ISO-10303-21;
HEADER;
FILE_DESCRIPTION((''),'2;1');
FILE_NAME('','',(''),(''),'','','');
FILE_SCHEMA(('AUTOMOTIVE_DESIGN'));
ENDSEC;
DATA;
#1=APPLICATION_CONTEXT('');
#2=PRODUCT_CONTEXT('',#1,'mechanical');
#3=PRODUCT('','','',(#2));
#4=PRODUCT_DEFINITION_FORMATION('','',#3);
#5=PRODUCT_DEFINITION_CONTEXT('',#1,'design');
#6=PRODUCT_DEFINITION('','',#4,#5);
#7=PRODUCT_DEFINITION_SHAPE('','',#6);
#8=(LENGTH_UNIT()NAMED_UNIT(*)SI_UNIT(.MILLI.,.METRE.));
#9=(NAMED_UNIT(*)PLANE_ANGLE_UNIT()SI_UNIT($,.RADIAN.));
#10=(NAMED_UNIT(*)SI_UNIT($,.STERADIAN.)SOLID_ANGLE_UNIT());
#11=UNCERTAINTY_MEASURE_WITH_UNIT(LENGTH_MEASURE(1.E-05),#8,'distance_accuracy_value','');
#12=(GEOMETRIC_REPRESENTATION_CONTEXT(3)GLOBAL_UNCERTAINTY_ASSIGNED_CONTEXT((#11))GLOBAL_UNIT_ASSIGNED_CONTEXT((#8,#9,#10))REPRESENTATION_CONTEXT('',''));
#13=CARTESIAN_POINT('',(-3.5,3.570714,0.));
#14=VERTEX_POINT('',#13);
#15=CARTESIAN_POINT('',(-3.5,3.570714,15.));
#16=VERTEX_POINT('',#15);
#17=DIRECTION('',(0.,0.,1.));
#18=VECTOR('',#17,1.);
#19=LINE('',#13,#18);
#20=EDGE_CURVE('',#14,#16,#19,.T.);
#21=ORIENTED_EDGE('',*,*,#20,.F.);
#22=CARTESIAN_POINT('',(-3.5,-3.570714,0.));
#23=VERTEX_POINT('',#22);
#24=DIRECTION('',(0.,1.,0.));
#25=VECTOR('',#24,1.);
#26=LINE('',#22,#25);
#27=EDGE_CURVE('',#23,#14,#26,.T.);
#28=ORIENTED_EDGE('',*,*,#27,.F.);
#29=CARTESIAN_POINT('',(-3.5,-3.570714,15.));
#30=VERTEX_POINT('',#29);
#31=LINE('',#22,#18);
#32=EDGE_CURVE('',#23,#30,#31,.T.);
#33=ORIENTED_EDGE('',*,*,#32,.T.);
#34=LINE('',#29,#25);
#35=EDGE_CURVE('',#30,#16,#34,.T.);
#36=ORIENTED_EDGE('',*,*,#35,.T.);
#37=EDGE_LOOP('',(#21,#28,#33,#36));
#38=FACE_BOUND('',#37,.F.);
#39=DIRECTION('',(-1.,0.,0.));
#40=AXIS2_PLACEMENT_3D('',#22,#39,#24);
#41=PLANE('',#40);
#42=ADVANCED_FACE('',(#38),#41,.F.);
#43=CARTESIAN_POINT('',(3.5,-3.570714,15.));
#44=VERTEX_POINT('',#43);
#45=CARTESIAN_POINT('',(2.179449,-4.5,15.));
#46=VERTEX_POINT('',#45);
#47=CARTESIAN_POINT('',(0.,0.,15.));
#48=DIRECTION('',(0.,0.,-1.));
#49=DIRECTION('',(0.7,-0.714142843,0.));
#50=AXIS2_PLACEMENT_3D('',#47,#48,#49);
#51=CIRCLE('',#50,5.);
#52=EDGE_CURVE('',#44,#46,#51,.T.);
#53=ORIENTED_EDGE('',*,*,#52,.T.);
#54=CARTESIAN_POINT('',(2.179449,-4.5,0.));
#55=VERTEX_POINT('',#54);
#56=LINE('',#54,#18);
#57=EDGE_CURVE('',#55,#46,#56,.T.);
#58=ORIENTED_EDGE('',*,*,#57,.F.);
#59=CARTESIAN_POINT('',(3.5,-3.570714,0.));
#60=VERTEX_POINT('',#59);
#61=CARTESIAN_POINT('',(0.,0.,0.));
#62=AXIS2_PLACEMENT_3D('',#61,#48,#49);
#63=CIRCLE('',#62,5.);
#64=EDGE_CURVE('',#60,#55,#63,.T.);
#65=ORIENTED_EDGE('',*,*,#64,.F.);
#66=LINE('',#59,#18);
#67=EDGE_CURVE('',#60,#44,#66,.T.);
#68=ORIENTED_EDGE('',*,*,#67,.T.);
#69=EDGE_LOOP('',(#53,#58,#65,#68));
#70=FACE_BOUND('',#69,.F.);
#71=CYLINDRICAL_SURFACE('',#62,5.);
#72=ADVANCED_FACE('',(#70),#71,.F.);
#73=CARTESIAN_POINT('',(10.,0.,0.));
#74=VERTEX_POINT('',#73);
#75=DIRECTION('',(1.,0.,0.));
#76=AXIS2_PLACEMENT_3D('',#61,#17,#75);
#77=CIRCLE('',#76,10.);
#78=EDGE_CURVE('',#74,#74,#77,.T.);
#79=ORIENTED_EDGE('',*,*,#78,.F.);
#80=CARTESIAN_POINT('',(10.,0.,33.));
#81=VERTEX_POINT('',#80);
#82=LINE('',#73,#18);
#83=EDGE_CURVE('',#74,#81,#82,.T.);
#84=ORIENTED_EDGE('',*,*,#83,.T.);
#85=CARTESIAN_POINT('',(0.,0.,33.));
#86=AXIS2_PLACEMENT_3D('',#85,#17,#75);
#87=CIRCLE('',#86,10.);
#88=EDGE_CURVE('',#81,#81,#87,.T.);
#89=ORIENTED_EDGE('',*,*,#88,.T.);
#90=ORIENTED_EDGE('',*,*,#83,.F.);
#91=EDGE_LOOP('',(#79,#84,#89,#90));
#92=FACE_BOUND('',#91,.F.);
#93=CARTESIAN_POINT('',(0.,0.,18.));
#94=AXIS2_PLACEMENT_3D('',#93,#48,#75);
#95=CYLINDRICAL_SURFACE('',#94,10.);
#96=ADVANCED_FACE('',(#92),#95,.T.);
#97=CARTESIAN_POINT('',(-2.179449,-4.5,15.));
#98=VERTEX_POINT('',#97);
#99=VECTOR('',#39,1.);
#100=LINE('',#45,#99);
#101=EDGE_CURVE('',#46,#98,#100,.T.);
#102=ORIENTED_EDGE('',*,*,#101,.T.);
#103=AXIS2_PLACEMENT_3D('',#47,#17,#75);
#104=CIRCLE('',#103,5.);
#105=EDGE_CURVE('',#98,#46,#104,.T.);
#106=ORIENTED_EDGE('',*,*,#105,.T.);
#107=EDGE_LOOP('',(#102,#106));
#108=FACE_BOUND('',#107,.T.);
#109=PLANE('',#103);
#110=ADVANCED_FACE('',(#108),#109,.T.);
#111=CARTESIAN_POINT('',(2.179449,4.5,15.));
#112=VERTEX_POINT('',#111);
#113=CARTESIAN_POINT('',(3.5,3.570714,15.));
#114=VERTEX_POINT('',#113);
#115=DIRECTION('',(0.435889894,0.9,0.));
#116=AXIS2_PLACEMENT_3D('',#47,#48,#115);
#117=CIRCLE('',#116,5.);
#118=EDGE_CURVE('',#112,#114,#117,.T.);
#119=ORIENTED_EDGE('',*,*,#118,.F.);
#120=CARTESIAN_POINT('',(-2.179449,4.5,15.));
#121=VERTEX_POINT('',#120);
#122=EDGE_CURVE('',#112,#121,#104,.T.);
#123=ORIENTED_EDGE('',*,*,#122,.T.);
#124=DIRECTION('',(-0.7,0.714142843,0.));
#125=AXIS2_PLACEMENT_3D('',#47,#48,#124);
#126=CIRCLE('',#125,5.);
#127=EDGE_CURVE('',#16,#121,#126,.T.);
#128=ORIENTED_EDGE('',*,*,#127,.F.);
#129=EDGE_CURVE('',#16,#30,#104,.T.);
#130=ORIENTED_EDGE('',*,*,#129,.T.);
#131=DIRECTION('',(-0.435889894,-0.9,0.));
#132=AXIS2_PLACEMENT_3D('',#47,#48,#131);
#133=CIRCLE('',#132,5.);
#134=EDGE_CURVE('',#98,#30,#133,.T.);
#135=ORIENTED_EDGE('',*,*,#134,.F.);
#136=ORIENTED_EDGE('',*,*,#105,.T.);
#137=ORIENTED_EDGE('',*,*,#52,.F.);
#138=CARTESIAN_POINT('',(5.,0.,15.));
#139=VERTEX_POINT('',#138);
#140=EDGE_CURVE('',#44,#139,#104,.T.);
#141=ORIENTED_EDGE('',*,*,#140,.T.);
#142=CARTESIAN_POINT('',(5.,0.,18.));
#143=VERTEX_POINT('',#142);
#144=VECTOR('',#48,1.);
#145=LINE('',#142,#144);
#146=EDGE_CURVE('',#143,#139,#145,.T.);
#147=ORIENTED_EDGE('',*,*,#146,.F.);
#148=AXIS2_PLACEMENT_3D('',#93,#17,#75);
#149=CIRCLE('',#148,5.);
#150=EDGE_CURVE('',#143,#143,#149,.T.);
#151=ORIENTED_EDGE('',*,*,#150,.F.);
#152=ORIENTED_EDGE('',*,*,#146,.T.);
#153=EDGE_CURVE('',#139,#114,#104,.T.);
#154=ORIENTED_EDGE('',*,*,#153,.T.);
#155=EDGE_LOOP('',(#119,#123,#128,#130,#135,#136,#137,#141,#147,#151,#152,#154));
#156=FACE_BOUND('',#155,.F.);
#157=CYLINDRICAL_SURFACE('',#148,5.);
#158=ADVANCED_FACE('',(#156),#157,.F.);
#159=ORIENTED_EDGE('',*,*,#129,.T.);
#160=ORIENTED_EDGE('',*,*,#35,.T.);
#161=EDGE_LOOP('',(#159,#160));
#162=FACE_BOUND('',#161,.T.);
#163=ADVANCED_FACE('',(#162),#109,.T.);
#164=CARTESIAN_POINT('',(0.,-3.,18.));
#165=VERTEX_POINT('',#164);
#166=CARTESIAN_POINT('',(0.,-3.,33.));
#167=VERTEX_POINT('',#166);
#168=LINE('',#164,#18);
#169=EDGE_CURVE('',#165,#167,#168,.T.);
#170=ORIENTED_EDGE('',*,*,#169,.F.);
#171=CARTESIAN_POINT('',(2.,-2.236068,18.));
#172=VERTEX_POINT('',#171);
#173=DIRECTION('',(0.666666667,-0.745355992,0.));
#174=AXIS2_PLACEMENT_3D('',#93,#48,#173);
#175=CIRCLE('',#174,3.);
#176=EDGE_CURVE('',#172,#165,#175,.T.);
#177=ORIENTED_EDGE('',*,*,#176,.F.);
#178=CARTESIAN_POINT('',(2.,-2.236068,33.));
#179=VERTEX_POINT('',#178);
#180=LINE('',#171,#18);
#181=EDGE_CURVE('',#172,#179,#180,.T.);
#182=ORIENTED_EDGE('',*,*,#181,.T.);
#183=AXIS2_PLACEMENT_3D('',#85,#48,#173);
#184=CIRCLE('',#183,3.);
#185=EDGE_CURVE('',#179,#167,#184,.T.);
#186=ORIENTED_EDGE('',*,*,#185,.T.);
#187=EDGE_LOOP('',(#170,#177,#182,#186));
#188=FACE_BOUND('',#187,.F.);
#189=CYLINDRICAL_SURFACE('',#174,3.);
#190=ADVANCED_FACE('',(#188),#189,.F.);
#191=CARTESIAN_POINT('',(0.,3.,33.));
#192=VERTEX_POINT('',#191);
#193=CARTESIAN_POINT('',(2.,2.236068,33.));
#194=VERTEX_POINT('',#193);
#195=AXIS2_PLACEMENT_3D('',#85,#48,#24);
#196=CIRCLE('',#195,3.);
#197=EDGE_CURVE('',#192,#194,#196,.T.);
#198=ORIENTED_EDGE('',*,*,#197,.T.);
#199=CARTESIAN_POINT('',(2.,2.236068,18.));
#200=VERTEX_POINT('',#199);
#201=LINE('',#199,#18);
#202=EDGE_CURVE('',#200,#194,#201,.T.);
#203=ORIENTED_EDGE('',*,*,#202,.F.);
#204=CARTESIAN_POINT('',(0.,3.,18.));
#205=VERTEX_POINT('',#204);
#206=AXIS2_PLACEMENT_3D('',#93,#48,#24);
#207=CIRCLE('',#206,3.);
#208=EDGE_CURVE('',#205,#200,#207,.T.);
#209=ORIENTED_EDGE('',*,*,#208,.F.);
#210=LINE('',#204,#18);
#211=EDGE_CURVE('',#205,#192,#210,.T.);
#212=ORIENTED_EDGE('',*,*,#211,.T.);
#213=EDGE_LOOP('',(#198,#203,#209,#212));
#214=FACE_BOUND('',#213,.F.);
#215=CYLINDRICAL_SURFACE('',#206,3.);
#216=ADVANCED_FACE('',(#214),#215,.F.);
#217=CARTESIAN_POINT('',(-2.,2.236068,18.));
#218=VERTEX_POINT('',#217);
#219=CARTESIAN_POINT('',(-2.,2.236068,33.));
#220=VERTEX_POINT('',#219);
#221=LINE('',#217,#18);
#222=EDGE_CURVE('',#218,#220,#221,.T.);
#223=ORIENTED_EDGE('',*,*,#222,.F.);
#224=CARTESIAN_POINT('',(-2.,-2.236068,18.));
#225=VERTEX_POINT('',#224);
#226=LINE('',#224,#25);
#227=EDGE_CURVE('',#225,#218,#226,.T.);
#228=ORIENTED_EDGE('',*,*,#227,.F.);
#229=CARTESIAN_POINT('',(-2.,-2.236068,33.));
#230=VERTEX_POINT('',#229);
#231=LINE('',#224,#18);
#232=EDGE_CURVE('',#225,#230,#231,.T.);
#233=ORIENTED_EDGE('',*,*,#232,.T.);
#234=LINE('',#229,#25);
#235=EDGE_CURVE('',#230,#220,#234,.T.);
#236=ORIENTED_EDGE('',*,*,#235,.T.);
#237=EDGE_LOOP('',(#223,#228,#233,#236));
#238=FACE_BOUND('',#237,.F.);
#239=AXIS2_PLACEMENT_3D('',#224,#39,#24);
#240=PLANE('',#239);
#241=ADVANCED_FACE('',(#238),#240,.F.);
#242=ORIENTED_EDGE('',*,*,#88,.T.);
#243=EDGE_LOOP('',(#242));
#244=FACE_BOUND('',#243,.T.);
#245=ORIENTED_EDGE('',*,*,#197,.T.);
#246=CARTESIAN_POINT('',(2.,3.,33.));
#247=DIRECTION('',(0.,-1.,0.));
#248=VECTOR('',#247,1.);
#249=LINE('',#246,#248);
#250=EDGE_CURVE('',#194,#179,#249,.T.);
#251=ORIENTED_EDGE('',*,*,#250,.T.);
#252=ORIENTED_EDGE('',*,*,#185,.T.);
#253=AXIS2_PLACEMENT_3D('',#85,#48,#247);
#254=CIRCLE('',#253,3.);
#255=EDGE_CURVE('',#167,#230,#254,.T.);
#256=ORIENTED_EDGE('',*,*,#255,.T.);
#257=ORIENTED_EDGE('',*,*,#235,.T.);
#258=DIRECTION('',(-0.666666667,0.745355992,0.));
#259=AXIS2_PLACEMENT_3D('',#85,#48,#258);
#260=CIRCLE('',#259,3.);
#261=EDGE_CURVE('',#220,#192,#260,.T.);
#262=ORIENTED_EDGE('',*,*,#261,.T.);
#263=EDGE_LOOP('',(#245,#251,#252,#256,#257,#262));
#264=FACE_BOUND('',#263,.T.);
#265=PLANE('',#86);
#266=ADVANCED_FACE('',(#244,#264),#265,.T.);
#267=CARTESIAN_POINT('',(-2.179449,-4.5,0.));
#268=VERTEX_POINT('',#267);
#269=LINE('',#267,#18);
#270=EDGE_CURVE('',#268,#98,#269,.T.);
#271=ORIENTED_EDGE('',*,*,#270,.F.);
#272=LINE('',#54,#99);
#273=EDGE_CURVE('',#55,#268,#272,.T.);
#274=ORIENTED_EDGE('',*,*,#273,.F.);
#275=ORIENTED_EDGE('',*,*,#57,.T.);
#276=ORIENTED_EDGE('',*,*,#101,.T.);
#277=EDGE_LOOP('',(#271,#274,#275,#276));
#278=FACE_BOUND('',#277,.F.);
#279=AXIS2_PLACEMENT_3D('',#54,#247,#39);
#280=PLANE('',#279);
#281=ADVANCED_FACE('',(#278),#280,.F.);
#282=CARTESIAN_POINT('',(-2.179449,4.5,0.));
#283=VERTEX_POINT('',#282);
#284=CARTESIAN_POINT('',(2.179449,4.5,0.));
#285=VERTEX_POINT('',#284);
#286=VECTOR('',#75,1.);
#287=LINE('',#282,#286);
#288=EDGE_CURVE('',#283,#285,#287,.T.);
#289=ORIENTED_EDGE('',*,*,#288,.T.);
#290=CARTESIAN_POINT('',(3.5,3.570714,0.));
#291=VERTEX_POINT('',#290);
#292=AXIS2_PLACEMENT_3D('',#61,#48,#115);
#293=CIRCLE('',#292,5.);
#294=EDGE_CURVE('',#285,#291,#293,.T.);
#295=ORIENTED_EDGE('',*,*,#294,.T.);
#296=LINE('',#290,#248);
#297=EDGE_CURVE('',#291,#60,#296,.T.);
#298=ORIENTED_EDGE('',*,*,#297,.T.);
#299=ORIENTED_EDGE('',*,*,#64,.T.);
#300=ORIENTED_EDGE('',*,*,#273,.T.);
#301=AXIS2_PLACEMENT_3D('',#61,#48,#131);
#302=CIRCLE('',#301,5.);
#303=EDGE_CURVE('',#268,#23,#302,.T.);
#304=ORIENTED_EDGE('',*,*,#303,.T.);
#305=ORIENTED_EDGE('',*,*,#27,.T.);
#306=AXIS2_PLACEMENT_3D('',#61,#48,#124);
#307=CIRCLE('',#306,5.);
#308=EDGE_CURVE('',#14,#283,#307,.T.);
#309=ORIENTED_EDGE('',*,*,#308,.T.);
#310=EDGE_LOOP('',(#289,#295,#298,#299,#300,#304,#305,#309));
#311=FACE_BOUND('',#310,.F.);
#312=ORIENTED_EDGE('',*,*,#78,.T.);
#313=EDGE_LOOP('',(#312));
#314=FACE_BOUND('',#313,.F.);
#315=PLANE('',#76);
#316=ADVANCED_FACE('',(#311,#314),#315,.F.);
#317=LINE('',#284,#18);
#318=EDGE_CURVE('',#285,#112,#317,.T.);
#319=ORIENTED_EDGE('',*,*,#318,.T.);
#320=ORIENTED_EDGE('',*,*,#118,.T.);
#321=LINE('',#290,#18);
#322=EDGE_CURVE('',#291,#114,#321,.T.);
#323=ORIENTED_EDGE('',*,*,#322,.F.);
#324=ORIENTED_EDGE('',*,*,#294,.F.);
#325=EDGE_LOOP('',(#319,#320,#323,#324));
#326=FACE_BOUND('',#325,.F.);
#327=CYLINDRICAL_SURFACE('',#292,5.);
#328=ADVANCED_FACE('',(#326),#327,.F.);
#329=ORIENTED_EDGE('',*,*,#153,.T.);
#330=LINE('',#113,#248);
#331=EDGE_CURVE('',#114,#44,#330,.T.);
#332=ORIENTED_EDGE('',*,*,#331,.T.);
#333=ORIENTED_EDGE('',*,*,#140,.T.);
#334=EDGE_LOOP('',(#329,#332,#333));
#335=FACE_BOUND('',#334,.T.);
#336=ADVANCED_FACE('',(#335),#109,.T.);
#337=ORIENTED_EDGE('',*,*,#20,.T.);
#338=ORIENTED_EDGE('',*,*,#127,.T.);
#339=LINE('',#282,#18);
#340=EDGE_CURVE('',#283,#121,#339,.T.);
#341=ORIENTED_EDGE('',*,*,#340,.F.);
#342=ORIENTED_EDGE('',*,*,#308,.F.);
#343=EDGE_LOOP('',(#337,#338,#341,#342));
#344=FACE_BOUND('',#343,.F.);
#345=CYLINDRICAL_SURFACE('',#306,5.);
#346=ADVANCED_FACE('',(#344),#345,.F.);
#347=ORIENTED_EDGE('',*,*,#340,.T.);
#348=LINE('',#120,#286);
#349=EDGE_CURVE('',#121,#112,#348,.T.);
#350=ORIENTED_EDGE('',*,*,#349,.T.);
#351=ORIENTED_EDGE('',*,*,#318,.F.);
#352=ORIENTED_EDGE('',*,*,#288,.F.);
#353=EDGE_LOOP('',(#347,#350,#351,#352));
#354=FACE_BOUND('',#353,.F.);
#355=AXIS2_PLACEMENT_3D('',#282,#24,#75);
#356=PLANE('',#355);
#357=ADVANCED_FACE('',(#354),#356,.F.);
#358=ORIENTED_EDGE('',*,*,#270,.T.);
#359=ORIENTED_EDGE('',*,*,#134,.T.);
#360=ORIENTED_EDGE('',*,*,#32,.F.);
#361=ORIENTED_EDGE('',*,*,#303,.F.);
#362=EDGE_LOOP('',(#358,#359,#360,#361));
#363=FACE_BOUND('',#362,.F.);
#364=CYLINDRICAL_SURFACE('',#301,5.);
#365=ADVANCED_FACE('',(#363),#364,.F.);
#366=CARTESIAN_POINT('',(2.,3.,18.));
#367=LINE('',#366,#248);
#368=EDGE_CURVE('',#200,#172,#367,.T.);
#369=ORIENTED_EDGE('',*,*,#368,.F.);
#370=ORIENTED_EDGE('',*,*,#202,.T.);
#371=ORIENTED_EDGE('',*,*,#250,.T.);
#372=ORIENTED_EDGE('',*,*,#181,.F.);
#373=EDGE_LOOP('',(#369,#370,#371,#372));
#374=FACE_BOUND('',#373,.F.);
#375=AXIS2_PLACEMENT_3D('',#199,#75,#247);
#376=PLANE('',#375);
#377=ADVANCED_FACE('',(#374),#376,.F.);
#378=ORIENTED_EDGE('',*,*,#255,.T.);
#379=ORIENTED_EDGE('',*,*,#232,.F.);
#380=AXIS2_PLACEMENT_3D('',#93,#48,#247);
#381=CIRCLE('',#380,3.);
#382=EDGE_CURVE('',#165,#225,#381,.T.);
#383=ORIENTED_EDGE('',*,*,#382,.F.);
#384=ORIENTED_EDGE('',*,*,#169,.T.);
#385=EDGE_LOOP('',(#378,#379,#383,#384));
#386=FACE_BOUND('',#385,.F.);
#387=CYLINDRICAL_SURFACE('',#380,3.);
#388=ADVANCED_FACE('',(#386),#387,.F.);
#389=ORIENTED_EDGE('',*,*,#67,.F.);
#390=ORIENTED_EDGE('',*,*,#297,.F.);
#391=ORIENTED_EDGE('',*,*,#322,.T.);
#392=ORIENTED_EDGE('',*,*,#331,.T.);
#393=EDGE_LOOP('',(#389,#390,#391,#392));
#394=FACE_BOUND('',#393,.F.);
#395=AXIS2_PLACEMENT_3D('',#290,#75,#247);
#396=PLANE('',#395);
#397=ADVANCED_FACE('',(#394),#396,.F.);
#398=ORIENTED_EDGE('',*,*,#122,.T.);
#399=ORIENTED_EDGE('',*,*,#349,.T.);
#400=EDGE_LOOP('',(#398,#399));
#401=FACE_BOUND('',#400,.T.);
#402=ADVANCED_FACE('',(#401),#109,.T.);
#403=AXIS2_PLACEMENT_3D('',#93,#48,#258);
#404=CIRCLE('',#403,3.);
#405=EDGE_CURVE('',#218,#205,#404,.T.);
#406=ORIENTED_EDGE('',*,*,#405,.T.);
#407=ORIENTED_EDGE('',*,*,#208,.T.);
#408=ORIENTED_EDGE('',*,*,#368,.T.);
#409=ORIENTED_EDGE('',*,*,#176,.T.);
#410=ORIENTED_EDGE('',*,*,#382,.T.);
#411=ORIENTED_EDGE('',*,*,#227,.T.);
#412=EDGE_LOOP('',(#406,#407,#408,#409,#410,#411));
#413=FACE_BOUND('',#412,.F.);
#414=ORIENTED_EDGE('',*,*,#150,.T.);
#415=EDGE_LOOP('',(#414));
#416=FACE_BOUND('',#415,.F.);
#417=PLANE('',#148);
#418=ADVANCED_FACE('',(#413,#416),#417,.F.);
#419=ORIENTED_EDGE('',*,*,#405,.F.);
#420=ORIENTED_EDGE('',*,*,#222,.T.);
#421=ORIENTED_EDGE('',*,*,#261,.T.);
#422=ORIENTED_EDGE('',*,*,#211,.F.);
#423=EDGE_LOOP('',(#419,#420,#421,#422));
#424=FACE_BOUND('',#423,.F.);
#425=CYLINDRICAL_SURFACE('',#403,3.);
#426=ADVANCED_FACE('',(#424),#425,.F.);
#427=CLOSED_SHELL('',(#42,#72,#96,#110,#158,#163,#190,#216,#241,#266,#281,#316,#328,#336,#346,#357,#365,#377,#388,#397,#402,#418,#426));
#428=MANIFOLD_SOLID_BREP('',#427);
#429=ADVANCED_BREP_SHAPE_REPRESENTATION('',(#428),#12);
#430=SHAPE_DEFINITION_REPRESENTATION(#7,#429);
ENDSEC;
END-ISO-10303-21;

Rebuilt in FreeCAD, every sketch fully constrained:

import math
import FreeCAD as App
import Part
import Sketcher

V = App.Vector

doc = App.newDocument("Part")
body = doc.addObject("PartDesign::Body", "Body")

sketch1 = body.newObject("Sketcher::SketchObject", "Sketch")
sketch1.AttachmentSupport = (doc.getObject("XY_Plane"), [""])
sketch1.MapMode = "FlatFace"
sketch1.addGeometry(Part.Circle(V(0, 0, 0), V(0, 0, 1), 10), False)
sketch1.addConstraint(Sketcher.Constraint("Coincident", 0, 3, -1, 1))
sketch1.addConstraint(Sketcher.Constraint("Diameter", 0, 20.0))
pad1 = body.newObject("PartDesign::Pad", "Pad")
pad1.Profile = sketch1
pad1.Length = 18

sketch2 = body.newObject("Sketcher::SketchObject", "Sketch001")
sketch2.AttachmentSupport = (doc.getObject("XY_Plane"), [""])
sketch2.MapMode = "FlatFace"
sketch2.addGeometry(Part.LineSegment(V(3.5, 3.570714, 0), V(3.5, -3.570714, 0)), False)
sketch2.addGeometry(Part.ArcOfCircle(Part.Circle(V(0, 0, 0), V(0, 0, 1), 5), math.radians(-64.158067), math.radians(-45.572996)), False)
sketch2.addGeometry(Part.LineSegment(V(2.179449, -4.5, 0), V(-2.179449, -4.5, 0)), False)
sketch2.addGeometry(Part.ArcOfCircle(Part.Circle(V(0, 0, 0), V(0, 0, 1), 5), math.radians(-134.427004), math.radians(-115.841933)), False)
sketch2.addGeometry(Part.LineSegment(V(-3.5, -3.570714, 0), V(-3.5, 3.570714, 0)), False)
sketch2.addGeometry(Part.ArcOfCircle(Part.Circle(V(0, 0, 0), V(0, 0, 1), 5), math.radians(115.841933), math.radians(134.427004)), False)
sketch2.addGeometry(Part.LineSegment(V(-2.179449, 4.5, 0), V(2.179449, 4.5, 0)), False)
sketch2.addGeometry(Part.ArcOfCircle(Part.Circle(V(0, 0, 0), V(0, 0, 1), 5), math.radians(45.572996), math.radians(64.158067)), False)
sketch2.addConstraint(Sketcher.Constraint("Coincident", 0, 2, 1, 2))
sketch2.addConstraint(Sketcher.Constraint("Coincident", 1, 1, 2, 1))
sketch2.addConstraint(Sketcher.Constraint("Coincident", 2, 2, 3, 2))
sketch2.addConstraint(Sketcher.Constraint("Coincident", 3, 1, 4, 1))
sketch2.addConstraint(Sketcher.Constraint("Coincident", 4, 2, 5, 2))
sketch2.addConstraint(Sketcher.Constraint("Coincident", 5, 1, 6, 1))
sketch2.addConstraint(Sketcher.Constraint("Coincident", 6, 2, 7, 2))
sketch2.addConstraint(Sketcher.Constraint("Coincident", 7, 1, 0, 1))
sketch2.addConstraint(Sketcher.Constraint("Vertical", 0))
sketch2.addConstraint(Sketcher.Constraint("Horizontal", 2))
sketch2.addConstraint(Sketcher.Constraint("Vertical", 4))
sketch2.addConstraint(Sketcher.Constraint("Horizontal", 6))
sketch2.addConstraint(Sketcher.Constraint("Coincident", 1, 3, -1, 1))
sketch2.addConstraint(Sketcher.Constraint("Coincident", 3, 3, -1, 1))
sketch2.addConstraint(Sketcher.Constraint("Coincident", 5, 3, -1, 1))
sketch2.addConstraint(Sketcher.Constraint("Coincident", 7, 3, -1, 1))
sketch2.addConstraint(Sketcher.Constraint("Equal", 1, 3))
sketch2.addConstraint(Sketcher.Constraint("Equal", 3, 5))
sketch2.addConstraint(Sketcher.Constraint("Equal", 5, 7))
sketch2.addConstraint(Sketcher.Constraint("Horizontal", 0, 2, 3, 1))
sketch2.addConstraint(Sketcher.Constraint("Vertical", 2, 2, 5, 1))
sketch2.addConstraint(Sketcher.Constraint("Radius", 1, 5.0))
sketch2.addConstraint(Sketcher.Constraint("DistanceX", -1, 1, 0, 2, 3.5))
sketch2.addConstraint(Sketcher.Constraint("DistanceY", 1, 1, -1, 1, 4.5))
pocket1 = body.newObject("PartDesign::Pocket", "Pocket")
pocket1.Profile = sketch2
pocket1.Length = 15
pocket1.Reversed = True

sketch3 = body.newObject("Sketcher::SketchObject", "Sketch002")
sketch3.AttachmentSupport = (doc.getObject("XY_Plane"), [""])
sketch3.MapMode = "FlatFace"
sketch3.AttachmentOffset = App.Placement(V(0, 0, 18), App.Rotation())
sketch3.addGeometry(Part.Circle(V(0, 0, 0), V(0, 0, 1), 5), False)
sketch3.addConstraint(Sketcher.Constraint("Coincident", 0, 3, -1, 1))
sketch3.addConstraint(Sketcher.Constraint("Diameter", 0, 10.0))
pocket2 = body.newObject("PartDesign::Pocket", "Pocket001")
pocket2.Profile = sketch3
pocket2.Length = 3

sketch4 = body.newObject("Sketcher::SketchObject", "Sketch003")
sketch4.AttachmentSupport = (doc.getObject("XY_Plane"), [""])
sketch4.MapMode = "FlatFace"
sketch4.AttachmentOffset = App.Placement(V(0, 0, 18), App.Rotation())
sketch4.addGeometry(Part.Circle(V(0, 0, 0), V(0, 0, 1), 10), False)
sketch4.addGeometry(Part.LineSegment(V(2, 2.236068, 0), V(2, -2.236068, 0)), False)
sketch4.addGeometry(Part.ArcOfCircle(Part.Circle(V(0, 0, 0), V(0, 0, 1), 3), math.radians(-90), math.radians(-48.189685)), False)
sketch4.addGeometry(Part.ArcOfCircle(Part.Circle(V(0, 0, 0), V(0, 0, 1), 3), math.radians(-131.810315), math.radians(-90)), False)
sketch4.addGeometry(Part.LineSegment(V(-2, -2.236068, 0), V(-2, 2.236068, 0)), False)
sketch4.addGeometry(Part.ArcOfCircle(Part.Circle(V(0, 0, 0), V(0, 0, 1), 3), math.radians(90), math.radians(131.810315)), False)
sketch4.addGeometry(Part.ArcOfCircle(Part.Circle(V(0, 0, 0), V(0, 0, 1), 3), math.radians(48.189685), math.radians(90)), False)
sketch4.addConstraint(Sketcher.Constraint("Coincident", 1, 2, 2, 2))
sketch4.addConstraint(Sketcher.Constraint("Tangent", 2, 1, 3, 2))
sketch4.addConstraint(Sketcher.Constraint("Coincident", 3, 1, 4, 1))
sketch4.addConstraint(Sketcher.Constraint("Coincident", 4, 2, 5, 2))
sketch4.addConstraint(Sketcher.Constraint("Tangent", 5, 1, 6, 2))
sketch4.addConstraint(Sketcher.Constraint("Coincident", 6, 1, 1, 1))
sketch4.addConstraint(Sketcher.Constraint("Vertical", 1))
sketch4.addConstraint(Sketcher.Constraint("Vertical", 4))
sketch4.addConstraint(Sketcher.Constraint("Coincident", 0, 3, -1, 1))
sketch4.addConstraint(Sketcher.Constraint("Coincident", 2, 3, -1, 1))
sketch4.addConstraint(Sketcher.Constraint("Coincident", 5, 3, -1, 1))
sketch4.addConstraint(Sketcher.Constraint("Equal", 2, 3))
sketch4.addConstraint(Sketcher.Constraint("Equal", 3, 5))
sketch4.addConstraint(Sketcher.Constraint("Equal", 5, 6))
sketch4.addConstraint(Sketcher.Constraint("PointOnObject", 2, 1, -2))
sketch4.addConstraint(Sketcher.Constraint("PointOnObject", 5, 1, -2))
sketch4.addConstraint(Sketcher.Constraint("Horizontal", 1, 2, 3, 1))
sketch4.addConstraint(Sketcher.Constraint("Diameter", 0, 20.0))
sketch4.addConstraint(Sketcher.Constraint("Radius", 2, 3.0))
sketch4.addConstraint(Sketcher.Constraint("DistanceX", -1, 1, 1, 2, 2.0))
pad2 = body.newObject("PartDesign::Pad", "Pad001")
pad2.Profile = sketch4
pad2.Length = 15

doc.recompute()
